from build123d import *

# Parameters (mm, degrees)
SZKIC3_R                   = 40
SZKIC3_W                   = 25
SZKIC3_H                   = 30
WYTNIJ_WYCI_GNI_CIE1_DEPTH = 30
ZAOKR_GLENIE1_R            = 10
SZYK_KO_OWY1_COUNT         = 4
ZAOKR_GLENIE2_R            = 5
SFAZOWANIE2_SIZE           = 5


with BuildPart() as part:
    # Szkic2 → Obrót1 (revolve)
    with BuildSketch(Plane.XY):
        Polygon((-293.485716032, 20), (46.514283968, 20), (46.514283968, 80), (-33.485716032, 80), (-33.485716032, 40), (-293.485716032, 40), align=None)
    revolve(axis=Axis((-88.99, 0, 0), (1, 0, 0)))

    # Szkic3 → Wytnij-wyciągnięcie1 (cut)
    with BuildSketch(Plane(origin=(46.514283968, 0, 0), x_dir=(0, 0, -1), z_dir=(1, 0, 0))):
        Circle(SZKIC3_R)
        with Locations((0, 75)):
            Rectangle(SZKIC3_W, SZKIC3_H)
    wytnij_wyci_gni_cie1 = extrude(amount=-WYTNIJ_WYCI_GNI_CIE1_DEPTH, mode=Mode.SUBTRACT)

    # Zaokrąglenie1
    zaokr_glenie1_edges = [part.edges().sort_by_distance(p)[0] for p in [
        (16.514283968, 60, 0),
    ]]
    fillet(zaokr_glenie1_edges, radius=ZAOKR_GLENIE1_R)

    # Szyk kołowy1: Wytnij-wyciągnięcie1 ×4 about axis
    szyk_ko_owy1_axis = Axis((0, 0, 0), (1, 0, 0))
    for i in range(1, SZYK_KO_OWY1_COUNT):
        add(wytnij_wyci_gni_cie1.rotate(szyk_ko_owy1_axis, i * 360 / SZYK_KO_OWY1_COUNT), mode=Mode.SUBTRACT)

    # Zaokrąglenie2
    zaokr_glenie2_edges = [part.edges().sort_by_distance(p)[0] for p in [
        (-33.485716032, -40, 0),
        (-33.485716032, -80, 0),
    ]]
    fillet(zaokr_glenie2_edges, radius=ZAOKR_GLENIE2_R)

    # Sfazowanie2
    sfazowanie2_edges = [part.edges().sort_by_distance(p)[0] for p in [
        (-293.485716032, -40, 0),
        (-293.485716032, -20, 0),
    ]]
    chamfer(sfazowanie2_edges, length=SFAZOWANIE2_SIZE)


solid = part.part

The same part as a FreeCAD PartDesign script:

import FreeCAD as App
import Part
import Sketcher

V = App.Vector
Q = App.Units.Quantity


def edges_at(feature, points):
    """Names of the edges that pass closest to the given points."""
    edges = feature.Shape.Edges
    near = lambda p: min(range(len(edges)), key=lambda i: edges[i].distToShape(Part.Vertex(*p))[0])
    return sorted({f"Edge{near(p) + 1}" for p in points})


def add_polygon(sketch, points):
    """Adds a closed chain of lines whose ends are joined by coincident constraints."""
    first, n = sketch.GeometryCount, len(points)
    for a, b in zip(points, points[1:] + points[:1]):
        sketch.addGeometry(Part.LineSegment(App.Vector(*a, 0), App.Vector(*b, 0)), False)
    for i in range(n):
        sketch.addConstraint(Sketcher.Constraint("Coincident", first + i, 2, first + (i + 1) % n, 1))

doc = App.newDocument("Part")
params = doc.addObject("Spreadsheet::Sheet", "Params")
for row, (alias, value) in enumerate([
    ("sketch1_width", "340 mm"),
    ("sketch1_width2", "80 mm"),
    ("sketch1_height", "60 mm"),
    ("sketch1_height2", "40 mm"),
    ("revolution_angle", "360 deg"),
    ("sketch2_diameter", "80 mm"),
    ("sketch2_width", "30 mm"),
    ("sketch2_height", "25 mm"),
    ("pocket1_length", "30 mm"),
    ("fillet_radius", "10 mm"),
    ("fillet2_radius", "5 mm"),
    ("chamfer_size", "5 mm"),
], start=1):
    params.set(f"A{row}", alias)
    params.set(f"B{row}", "=" + value)
    params.setAlias(f"B{row}", alias)

body = doc.addObject("PartDesign::Body", "Body")

# Sketch on XY plane
sketch1 = body.newObject("Sketcher::SketchObject", "Sketch")
sketch1.AttachmentSupport = (doc.getObject("XY_Plane"), [""])
sketch1.MapMode = "FlatFace"
add_polygon(sketch1, [(-293, 20), (47, 20), (47, 80), (-33, 80), (-33, 40), (-293, 40)])  # lines 0-5
sketch1.addConstraint(Sketcher.Constraint("Horizontal", 0))
sketch1.addConstraint(Sketcher.Constraint("Vertical", 1))
sketch1.addConstraint(Sketcher.Constraint("Horizontal", 2))
sketch1.addConstraint(Sketcher.Constraint("Vertical", 3))
sketch1.addConstraint(Sketcher.Constraint("Horizontal", 4))
sketch1.addConstraint(Sketcher.Constraint("Vertical", 5))
sketch1.addConstraint(Sketcher.Constraint("DistanceX", 0, 1, 0, 2, Q("340 mm")))
sketch1.addConstraint(Sketcher.Constraint("DistanceX", 2, 2, 2, 1, Q("80 mm")))
sketch1.addConstraint(Sketcher.Constraint("DistanceY", 1, 1, 1, 2, Q("60 mm")))
sketch1.addConstraint(Sketcher.Constraint("DistanceY", 3, 2, 3, 1, Q("40 mm")))
sketch1.addConstraint(Sketcher.Constraint("DistanceY", -1, 1, 0, 2, Q("20 mm")))
sketch1.addConstraint(Sketcher.Constraint("DistanceX", -1, 1, 0, 2, Q("46.514284 mm")))
sketch1.setExpression("Constraints[12]", "Params.sketch1_width")
sketch1.setExpression("Constraints[13]", "Params.sketch1_width2")
sketch1.setExpression("Constraints[14]", "Params.sketch1_height")
sketch1.setExpression("Constraints[15]", "Params.sketch1_height2")
revolution = body.newObject("PartDesign::Revolution", "Revolution")
revolution.Profile = sketch1
revolution.ReferenceAxis = (sketch1, ["H_Axis"])
revolution.setExpression("Angle", "Params.revolution_angle")

# Sketch on YZ plane
sketch2 = body.newObject("Sketcher::SketchObject", "Sketch001")
sketch2.AttachmentSupport = (doc.getObject("YZ_Plane"), [""])
sketch2.MapMode = "FlatFace"
sketch2.AttachmentOffset = App.Placement(V(0, 0, 46.514284), App.Rotation())
sketch2.addGeometry(Part.Circle(V(0, 0, 0), V(0, 0, 1), 40), False)  # 0
add_polygon(sketch2, [(90, 12), (60, 12), (60, -12), (90, -12)])  # lines 1-4
sketch2.addConstraint(Sketcher.Constraint("Horizontal", 1))
sketch2.addConstraint(Sketcher.Constraint("Vertical", 2))
sketch2.addConstraint(Sketcher.Constraint("Horizontal", 3))
sketch2.addConstraint(Sketcher.Constraint("Vertical", 4))
sketch2.addConstraint(Sketcher.Constraint("Coincident", 0, 3, -1, 1))
sketch2.addConstraint(Sketcher.Constraint("Diameter", 0, Q("80 mm")))
sketch2.addConstraint(Sketcher.Constraint("DistanceX", 1, 2, 1, 1, Q("30 mm")))
sketch2.addConstraint(Sketcher.Constraint("DistanceY", 2, 2, 2, 1, Q("25 mm")))
sketch2.addConstraint(Sketcher.Constraint("DistanceX", -1, 1, 1, 2, Q("60 mm")))
sketch2.addConstraint(Sketcher.Constraint("DistanceY", -1, 1, 1, 2, Q("12.5 mm")))
sketch2.setExpression("Constraints[9]", "Params.sketch2_diameter")
sketch2.setExpression("Constraints[10]", "Params.sketch2_width")
sketch2.setExpression("Constraints[11]", "Params.sketch2_height")
pocket1 = body.newObject("PartDesign::Pocket", "Pocket")
pocket1.Profile = sketch2
pocket1.setExpression("Length", "Params.pocket1_length")
doc.recompute()

fillet = body.newObject("PartDesign::Fillet", "Fillet")
fillet.Base = (pocket1, edges_at(pocket1, [(16.514, 60, 0)]))
fillet.setExpression("Radius", "Params.fillet_radius")
doc.recompute()

polarpattern = body.newObject("PartDesign::PolarPattern", "PolarPattern")
polarpattern.Originals = [pocket1]
polarpattern.Axis = (doc.getObject("X_Axis"), [""])
polarpattern.Angle = 360
polarpattern.Occurrences = 4
body.Tip = polarpattern
doc.recompute()

fillet2 = body.newObject("PartDesign::Fillet", "Fillet001")
fillet2.Base = (polarpattern, edges_at(polarpattern, [(-33.486, -40, 0), (-33.486, -80, 0)]))
fillet2.setExpression("Radius", "Params.fillet2_radius")
doc.recompute()

chamfer = body.newObject("PartDesign::Chamfer", "Chamfer")
chamfer.Base = (fillet2, edges_at(fillet2, [(-293.486, -40, 0), (-293.486, -20, 0)]))
chamfer.setExpression("Size", "Params.chamfer_size")

doc.recompute()
